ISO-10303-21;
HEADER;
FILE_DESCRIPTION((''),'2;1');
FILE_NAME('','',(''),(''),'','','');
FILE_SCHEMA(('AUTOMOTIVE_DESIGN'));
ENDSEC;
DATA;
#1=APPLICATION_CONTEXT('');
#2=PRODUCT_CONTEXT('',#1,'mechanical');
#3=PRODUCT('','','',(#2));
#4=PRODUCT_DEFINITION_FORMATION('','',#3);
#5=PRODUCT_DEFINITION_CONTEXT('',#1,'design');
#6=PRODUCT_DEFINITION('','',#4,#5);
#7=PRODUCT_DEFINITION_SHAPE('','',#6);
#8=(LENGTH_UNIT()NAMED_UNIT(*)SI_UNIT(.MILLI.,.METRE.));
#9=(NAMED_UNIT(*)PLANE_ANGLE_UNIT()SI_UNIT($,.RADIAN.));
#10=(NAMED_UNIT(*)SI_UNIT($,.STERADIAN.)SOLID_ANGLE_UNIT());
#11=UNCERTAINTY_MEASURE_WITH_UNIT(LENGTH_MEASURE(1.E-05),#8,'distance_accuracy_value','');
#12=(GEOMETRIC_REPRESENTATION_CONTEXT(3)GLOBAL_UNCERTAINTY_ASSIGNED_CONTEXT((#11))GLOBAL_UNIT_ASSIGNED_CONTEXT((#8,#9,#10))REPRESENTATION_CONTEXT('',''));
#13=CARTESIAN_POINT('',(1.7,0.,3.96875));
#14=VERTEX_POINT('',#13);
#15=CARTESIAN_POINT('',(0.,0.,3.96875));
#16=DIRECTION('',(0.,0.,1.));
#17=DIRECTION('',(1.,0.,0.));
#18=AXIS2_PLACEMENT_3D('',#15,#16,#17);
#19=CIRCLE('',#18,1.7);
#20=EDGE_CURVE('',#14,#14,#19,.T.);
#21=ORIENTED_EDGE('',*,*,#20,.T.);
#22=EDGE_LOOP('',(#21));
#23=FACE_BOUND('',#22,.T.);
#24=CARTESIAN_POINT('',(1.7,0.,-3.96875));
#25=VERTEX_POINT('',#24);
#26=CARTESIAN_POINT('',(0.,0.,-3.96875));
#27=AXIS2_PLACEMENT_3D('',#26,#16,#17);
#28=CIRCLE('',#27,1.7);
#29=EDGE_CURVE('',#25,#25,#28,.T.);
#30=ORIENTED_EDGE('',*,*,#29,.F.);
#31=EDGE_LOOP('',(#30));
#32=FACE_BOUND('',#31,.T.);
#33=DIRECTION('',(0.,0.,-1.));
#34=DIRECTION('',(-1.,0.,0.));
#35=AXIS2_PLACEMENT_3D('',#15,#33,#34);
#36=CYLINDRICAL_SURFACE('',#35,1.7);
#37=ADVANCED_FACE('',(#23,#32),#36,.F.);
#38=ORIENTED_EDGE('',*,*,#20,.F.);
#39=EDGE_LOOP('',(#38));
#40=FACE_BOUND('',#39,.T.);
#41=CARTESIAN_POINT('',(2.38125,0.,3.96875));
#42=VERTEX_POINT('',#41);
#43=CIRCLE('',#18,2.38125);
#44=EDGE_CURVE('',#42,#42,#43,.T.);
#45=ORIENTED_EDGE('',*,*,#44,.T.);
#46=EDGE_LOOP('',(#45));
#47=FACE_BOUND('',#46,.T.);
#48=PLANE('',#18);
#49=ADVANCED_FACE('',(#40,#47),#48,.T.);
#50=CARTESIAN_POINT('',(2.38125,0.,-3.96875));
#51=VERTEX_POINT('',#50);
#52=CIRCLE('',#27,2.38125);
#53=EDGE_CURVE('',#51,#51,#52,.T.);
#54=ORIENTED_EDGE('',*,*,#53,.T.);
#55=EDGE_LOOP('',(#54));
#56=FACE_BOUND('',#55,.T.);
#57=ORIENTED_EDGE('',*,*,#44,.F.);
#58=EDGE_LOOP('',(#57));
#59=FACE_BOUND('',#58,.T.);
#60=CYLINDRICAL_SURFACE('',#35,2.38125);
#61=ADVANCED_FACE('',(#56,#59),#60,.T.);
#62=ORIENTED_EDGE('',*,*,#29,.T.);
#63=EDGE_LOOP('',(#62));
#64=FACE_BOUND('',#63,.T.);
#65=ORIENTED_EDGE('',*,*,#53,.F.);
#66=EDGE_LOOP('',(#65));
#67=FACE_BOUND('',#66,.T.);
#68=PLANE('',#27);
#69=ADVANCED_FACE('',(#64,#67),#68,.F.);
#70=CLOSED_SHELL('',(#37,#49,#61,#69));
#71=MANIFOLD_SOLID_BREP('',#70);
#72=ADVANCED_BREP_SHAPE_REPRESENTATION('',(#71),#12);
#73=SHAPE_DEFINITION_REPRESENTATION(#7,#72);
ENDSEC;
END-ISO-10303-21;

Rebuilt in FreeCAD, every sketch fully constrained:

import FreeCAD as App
import Part
import Sketcher
from FreeCAD import Vector
Q = App.Units.Quantity

doc = App.newDocument("Part")
body = doc.addObject("PartDesign::Body", "Body")

# Sketch on XY plane
sketch1 = body.newObject("Sketcher::SketchObject", "Sketch")
sketch1.AttachmentSupport = (doc.getObject("XY_Plane"), [""])
sketch1.MapMode = "FlatFace"
sketch1.addGeometry(Part.Circle(Vector(0, 0, 0), Vector(0, 0, 1), 2.38125), False)
sketch1.addGeometry(Part.Circle(Vector(0, 0, 0), Vector(0, 0, 1), 1.7), False)
sketch1.addConstraint(Sketcher.Constraint("Coincident", 0, 3, -1, 1))
sketch1.addConstraint(Sketcher.Constraint("Coincident", 1, 3, -1, 1))
sketch1.addConstraint(Sketcher.Constraint("Diameter", 0, Q("0.1875 in")))
sketch1.addConstraint(Sketcher.Constraint("Diameter", 1, Q("3.4 mm")))
pad1 = body.newObject("PartDesign::Pad", "Pad")
pad1.Profile = sketch1
pad1.Length = Q("0.3125 in")
pad1.Midplane = True

doc.recompute()
